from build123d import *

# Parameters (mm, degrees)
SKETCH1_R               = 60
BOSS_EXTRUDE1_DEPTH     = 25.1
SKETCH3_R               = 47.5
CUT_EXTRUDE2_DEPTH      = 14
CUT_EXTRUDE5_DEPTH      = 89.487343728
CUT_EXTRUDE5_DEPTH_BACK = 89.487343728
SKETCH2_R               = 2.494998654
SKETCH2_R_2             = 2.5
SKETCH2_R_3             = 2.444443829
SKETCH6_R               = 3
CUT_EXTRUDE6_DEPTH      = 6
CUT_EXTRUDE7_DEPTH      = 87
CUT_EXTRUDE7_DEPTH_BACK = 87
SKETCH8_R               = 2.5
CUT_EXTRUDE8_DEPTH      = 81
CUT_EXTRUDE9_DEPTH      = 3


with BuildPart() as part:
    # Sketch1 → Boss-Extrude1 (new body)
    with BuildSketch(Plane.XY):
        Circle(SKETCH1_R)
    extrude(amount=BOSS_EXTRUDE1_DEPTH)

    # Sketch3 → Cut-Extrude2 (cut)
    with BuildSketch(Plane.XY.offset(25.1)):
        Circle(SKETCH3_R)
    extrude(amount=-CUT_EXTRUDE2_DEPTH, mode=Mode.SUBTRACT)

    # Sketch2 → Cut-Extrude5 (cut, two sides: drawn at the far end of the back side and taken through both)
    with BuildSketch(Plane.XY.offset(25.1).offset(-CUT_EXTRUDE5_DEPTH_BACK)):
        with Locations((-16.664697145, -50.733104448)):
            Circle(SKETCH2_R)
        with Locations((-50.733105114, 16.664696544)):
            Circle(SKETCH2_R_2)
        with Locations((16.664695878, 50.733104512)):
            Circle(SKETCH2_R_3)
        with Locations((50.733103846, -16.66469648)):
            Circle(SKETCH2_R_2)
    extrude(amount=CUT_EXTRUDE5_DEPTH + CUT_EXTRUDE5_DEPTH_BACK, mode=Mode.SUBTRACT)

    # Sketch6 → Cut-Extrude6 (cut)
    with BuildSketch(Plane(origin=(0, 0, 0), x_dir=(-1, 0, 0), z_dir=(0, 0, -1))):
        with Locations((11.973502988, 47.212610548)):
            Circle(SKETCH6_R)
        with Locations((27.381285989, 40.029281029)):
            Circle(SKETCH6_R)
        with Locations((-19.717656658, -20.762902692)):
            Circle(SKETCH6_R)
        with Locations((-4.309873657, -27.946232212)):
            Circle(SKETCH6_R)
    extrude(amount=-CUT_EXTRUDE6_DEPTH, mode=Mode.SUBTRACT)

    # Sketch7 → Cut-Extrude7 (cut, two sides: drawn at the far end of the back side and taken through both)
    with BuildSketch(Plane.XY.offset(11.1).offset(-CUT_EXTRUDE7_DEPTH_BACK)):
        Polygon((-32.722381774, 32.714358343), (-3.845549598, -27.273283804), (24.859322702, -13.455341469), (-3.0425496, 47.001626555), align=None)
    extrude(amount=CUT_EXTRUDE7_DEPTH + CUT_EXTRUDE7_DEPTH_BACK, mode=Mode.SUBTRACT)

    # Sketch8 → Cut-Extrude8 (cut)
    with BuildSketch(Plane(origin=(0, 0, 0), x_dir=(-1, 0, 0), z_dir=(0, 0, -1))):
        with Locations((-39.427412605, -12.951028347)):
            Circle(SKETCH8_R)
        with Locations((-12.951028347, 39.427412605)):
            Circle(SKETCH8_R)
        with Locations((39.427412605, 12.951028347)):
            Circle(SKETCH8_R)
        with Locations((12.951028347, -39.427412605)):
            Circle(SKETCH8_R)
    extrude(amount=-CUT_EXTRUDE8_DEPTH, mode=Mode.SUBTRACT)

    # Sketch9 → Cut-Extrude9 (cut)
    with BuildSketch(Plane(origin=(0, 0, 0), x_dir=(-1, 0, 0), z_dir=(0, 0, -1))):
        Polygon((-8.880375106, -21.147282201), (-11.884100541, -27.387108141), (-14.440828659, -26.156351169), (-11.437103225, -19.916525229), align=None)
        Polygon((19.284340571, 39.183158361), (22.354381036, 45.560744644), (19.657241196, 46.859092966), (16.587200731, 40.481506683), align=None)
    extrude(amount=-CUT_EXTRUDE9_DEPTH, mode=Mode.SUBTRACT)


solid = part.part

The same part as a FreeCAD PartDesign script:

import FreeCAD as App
import Part
import Sketcher

V = App.Vector
Q = App.Units.Quantity

doc = App.newDocument("Part")
body = doc.addObject("PartDesign::Body", "Body")

# Sketch on XY plane
sketch1 = doc.addObject("Sketcher::SketchObject", "Sketch")
body.addObject(sketch1)
sketch1.AttachmentSupport = (doc.XY_Plane, [""])
sketch1.MapMode = "FlatFace"
sketch1.addGeometry(Part.Circle(V(0, 0, 0), V(0, 0, 1), 60), False)
sketch1.addConstraint([
    Sketcher.Constraint("Coincident", 0, 3, -1, 1),
    Sketcher.Constraint("Diameter", 0, Q("120 mm")),
])
pad1 = doc.addObject("PartDesign::Pad", "Pad")
body.addObject(pad1)
pad1.Profile = sketch1
pad1.Length = 25.1

# Sketch on XY plane
sketch2 = doc.addObject("Sketcher::SketchObject", "Sketch001")
body.addObject(sketch2)
sketch2.AttachmentSupport = (doc.XY_Plane, [""])
sketch2.MapMode = "FlatFace"
sketch2.AttachmentOffset = App.Placement(V(0, 0, 25.1), App.Rotation())
sketch2.addGeometry(Part.Circle(V(0, 0, 0), V(0, 0, 1), 48), False)
sketch2.addConstraint([
    Sketcher.Constraint("Coincident", 0, 3, -1, 1),
    Sketcher.Constraint("Diameter", 0, Q("95 mm")),
])
pocket1 = doc.addObject("PartDesign::Pocket", "Pocket")
body.addObject(pocket1)
pocket1.Profile = sketch2
pocket1.Length = 14

# Sketch on XY plane
sketch3 = doc.addObject("Sketcher::SketchObject", "Sketch002")
body.addObject(sketch3)
sketch3.AttachmentSupport = (doc.XY_Plane, [""])
sketch3.MapMode = "FlatFace"
sketch3.AttachmentOffset = App.Placement(V(0, 0, 25.1), App.Rotation())
sketch3.addGeometry([
    Part.Circle(V(-16.7, -50.7, 0), V(0, 0, 1), 2.5),
    Part.Circle(V(-50.7, 16.7, 0), V(0, 0, 1), 2.5),
    Part.Circle(V(16.7, 50.7, 0), V(0, 0, 1), 2.4),
    Part.Circle(V(50.7, -16.7, 0), V(0, 0, 1), 2.5),
], False)
sketch3.addConstraint([
    Sketcher.Constraint("Equal", 1, 3),
    Sketcher.Constraint("Symmetric", 0, 3, 2, 3, -1, 1),
    Sketcher.Constraint("Symmetric", 1, 3, 3, 3, -1, 1),
    Sketcher.Constraint("Diameter", 1, Q("5 mm")),
    Sketcher.Constraint("Diameter", 0, Q("4.989997 mm")),
    Sketcher.Constraint("Diameter", 2, Q("4.888888 mm")),
    Sketcher.Constraint("DistanceY", 0, 3, 1, 3, Q("67.397801 mm")),
    Sketcher.Constraint("DistanceX", 1, 3, 2, 3, Q("67.397801 mm")),
    Sketcher.Constraint("DistanceY", 0, 3, 2, 3, Q("101.466209 mm")),
    Sketcher.Constraint("DistanceX", 1, 3, 3, 3, Q("101.466209 mm")),
])
pocket2 = doc.addObject("PartDesign::Pocket", "Pocket001")
body.addObject(pocket2)
pocket2.Profile = sketch3
pocket2.Type = "ThroughAll"
pocket2.Midplane = True

# Sketch on XY plane
sketch4 = doc.addObject("Sketcher::SketchObject", "Sketch003")
body.addObject(sketch4)
sketch4.AttachmentSupport = (doc.XY_Plane, [""])
sketch4.MapMode = "FlatFace"
sketch4.addGeometry([
    Part.Circle(V(-12, 47.2, 0), V(0, 0, 1), 3),
    Part.Circle(V(-27.4, 40, 0), V(0, 0, 1), 3),
    Part.Circle(V(19.7, -20.8, 0), V(0, 0, 1), 3),
    Part.Circle(V(4.3, -27.9, 0), V(0, 0, 1), 3),
], False)
sketch4.addConstraint([
    Sketcher.Constraint("Equal", 0, 1),
    Sketcher.Constraint("Equal", 1, 2),
    Sketcher.Constraint("Equal", 2, 3),
    Sketcher.Constraint("Diameter", 0, Q("6 mm")),
    Sketcher.Constraint("DistanceY", -1, 1, 0, 3, Q("47.212611 mm")),
    Sketcher.Constraint("DistanceY", -1, 1, 1, 3, Q("40.029281 mm")),
    Sketcher.Constraint("DistanceX", 0, 3, 2, 3, Q("31.69116 mm")),
    Sketcher.Constraint("DistanceY", 3, 3, 2, 3, Q("7.18333 mm")),
    Sketcher.Constraint("DistanceX", 1, 3, 3, 3, Q("31.69116 mm")),
    Sketcher.Constraint("DistanceX", 0, 3, -1, 1, Q("11.973503 mm")),
    Sketcher.Constraint("DistanceX", 1, 3, -1, 1, Q("27.381286 mm")),
    Sketcher.Constraint("DistanceY", 2, 3, -1, 1, Q("20.762903 mm")),
])
pocket3 = doc.addObject("PartDesign::Pocket", "Pocket002")
body.addObject(pocket3)
pocket3.Profile = sketch4
pocket3.Length = 6
pocket3.Reversed = True

# Sketch on XY plane
sketch5 = doc.addObject("Sketcher::SketchObject", "Sketch004")
body.addObject(sketch5)
sketch5.AttachmentSupport = (doc.XY_Plane, [""])
sketch5.MapMode = "FlatFace"
sketch5.AttachmentOffset = App.Placement(V(0, 0, 11.1), App.Rotation())
sketch5.addGeometry([
    Part.LineSegment(V(-33, 33, 0), V(-4, -27, 0)),
    Part.LineSegment(V(-4, -27, 0), V(25, -13, 0)),
    Part.LineSegment(V(25, -13, 0), V(-3, 47, 0)),
    Part.LineSegment(V(-3, 47, 0), V(-33, 33, 0)),
], False)
sketch5.addConstraint([
    Sketcher.Constraint("Coincident", 0, 2, 1, 1),
    Sketcher.Constraint("Coincident", 1, 2, 2, 1),
    Sketcher.Constraint("Coincident", 2, 2, 3, 1),
    Sketcher.Constraint("Coincident", 3, 2, 0, 1),
    Sketcher.Constraint("Perpendicular", 0, 1),
    Sketcher.Constraint("Parallel", 1, 3),
    Sketcher.Constraint("DistanceX", 0, 2, 2, 2, Q("0.803 mm")),
    Sketcher.Constraint("DistanceY", 1, 2, 3, 2, Q("46.1697 mm")),
    Sketcher.Constraint("Distance", 2, Q("66.584979 mm")),
    Sketcher.Constraint("Distance", 3, Q("32.939619 mm")),
    Sketcher.Constraint("DistanceX", 0, 2, -1, 1, Q("3.84555 mm")),
    Sketcher.Constraint("DistanceY", 1, 2, -1, 1, Q("13.455341 mm")),
])
pocket4 = doc.addObject("PartDesign::Pocket", "Pocket003")
body.addObject(pocket4)
pocket4.Profile = sketch5
pocket4.Type = "ThroughAll"
pocket4.Midplane = True

# Sketch on XY plane
sketch6 = doc.addObject("Sketcher::SketchObject", "Sketch005")
body.addObject(sketch6)
sketch6.AttachmentSupport = (doc.XY_Plane, [""])
sketch6.MapMode = "FlatFace"
sketch6.addGeometry([
    Part.Circle(V(39.4, -13, 0), V(0, 0, 1), 2.5),
    Part.Circle(V(13, 39.4, 0), V(0, 0, 1), 2.5),
    Part.Circle(V(-39.4, 13, 0), V(0, 0, 1), 2.5),
    Part.Circle(V(-13, -39.4, 0), V(0, 0, 1), 2.5),
], False)
sketch6.addConstraint([
    Sketcher.Constraint("Equal", 0, 1),
    Sketcher.Constraint("Equal", 1, 2),
    Sketcher.Constraint("Equal", 2, 3),
    Sketcher.Constraint("Symmetric", 0, 3, 2, 3, -1, 1),
    Sketcher.Constraint("Symmetric", 1, 3, 3, 3, -1, 1),
    Sketcher.Constraint("Diameter", 0, Q("5 mm")),
    Sketcher.Constraint("DistanceY", 0, 3, -1, 1, Q("12.951028 mm")),
    Sketcher.Constraint("DistanceX", -1, 1, 1, 3, Q("12.951028 mm")),
    Sketcher.Constraint("DistanceY", 0, 3, 1, 3, Q("52.378441 mm")),
    Sketcher.Constraint("DistanceX", 2, 3, 1, 3, Q("52.378441 mm")),
])
pocket5 = doc.addObject("PartDesign::Pocket", "Pocket004")
body.addObject(pocket5)
pocket5.Profile = sketch6
pocket5.Length = 81
pocket5.Reversed = True

# Sketch on XY plane
sketch7 = doc.addObject("Sketcher::SketchObject", "Sketch006")
body.addObject(sketch7)
sketch7.AttachmentSupport = (doc.XY_Plane, [""])
sketch7.MapMode = "FlatFace"
sketch7.addGeometry([
    Part.LineSegment(V(11.9, -27.4, 0), V(8.9, -21.1, 0)),  # 0
    Part.LineSegment(V(8.9, -21.1, 0), V(11.4, -19.9, 0)),  # 1
    Part.LineSegment(V(11.4, -19.9, 0), V(14.4, -26.2, 0)),  # 2
    Part.LineSegment(V(14.4, -26.2, 0), V(11.9, -27.4, 0)),  # 3
    Part.LineSegment(V(-19.3, 39.2, 0), V(-22.4, 45.6, 0)),  # 4
    Part.LineSegment(V(-22.4, 45.6, 0), V(-19.7, 46.9, 0)),  # 5
    Part.LineSegment(V(-19.7, 46.9, 0), V(-16.6, 40.5, 0)),  # 6
    Part.LineSegment(V(-16.6, 40.5, 0), V(-19.3, 39.2, 0)),  # 7
], False)
sketch7.addConstraint([
    Sketcher.Constraint("Coincident", 0, 2, 1, 1),
    Sketcher.Constraint("Coincident", 1, 2, 2, 1),
    Sketcher.Constraint("Coincident", 2, 2, 3, 1),
    Sketcher.Constraint("Coincident", 3, 2, 0, 1),
    Sketcher.Constraint("Coincident", 4, 2, 5, 1),
    Sketcher.Constraint("Coincident", 5, 2, 6, 1),
    Sketcher.Constraint("Coincident", 6, 2, 7, 1),
    Sketcher.Constraint("Coincident", 7, 2, 4, 1),
    Sketcher.Constraint("Perpendicular", 0, 1),
    Sketcher.Constraint("Perpendicular", 1, 2),
    Sketcher.Constraint("Perpendicular", 2, 3),
    Sketcher.Constraint("Perpendicular", 3, 4),
    Sketcher.Constraint("Perpendicular", 4, 5),
    Sketcher.Constraint("Perpendicular", 5, 6),
    Sketcher.Constraint("Perpendicular", 6, 7),
    Sketcher.Constraint("DistanceX", -1, 1, 3, 2, Q("11.884101 mm")),
    Sketcher.Constraint("DistanceX", 6, 2, -1, 1, Q("16.587201 mm")),
    Sketcher.Constraint("DistanceY", 3, 2, 5, 2, Q("74.246201 mm")),
    Sketcher.Constraint("DistanceX", 5, 2, 7, 2, Q("0.372901 mm")),
    Sketcher.Constraint("Distance", 5, Q("2.993371 mm")),
    Sketcher.Constraint("DistanceX", -1, 1, 2, 2, Q("14.440829 mm")),
    Sketcher.Constraint("DistanceY", 2, 2, -1, 1, Q("26.156351 mm")),
    Sketcher.Constraint("DistanceY", 3, 2, -1, 1, Q("27.387108 mm")),
    Sketcher.Constraint("DistanceY", 2, 2, 0, 2, Q("5.009069 mm")),
])
pocket6 = doc.addObject("PartDesign::Pocket", "Pocket005")
body.addObject(pocket6)
pocket6.Profile = sketch7
pocket6.Length = 3
pocket6.Reversed = True

doc.recompute()
